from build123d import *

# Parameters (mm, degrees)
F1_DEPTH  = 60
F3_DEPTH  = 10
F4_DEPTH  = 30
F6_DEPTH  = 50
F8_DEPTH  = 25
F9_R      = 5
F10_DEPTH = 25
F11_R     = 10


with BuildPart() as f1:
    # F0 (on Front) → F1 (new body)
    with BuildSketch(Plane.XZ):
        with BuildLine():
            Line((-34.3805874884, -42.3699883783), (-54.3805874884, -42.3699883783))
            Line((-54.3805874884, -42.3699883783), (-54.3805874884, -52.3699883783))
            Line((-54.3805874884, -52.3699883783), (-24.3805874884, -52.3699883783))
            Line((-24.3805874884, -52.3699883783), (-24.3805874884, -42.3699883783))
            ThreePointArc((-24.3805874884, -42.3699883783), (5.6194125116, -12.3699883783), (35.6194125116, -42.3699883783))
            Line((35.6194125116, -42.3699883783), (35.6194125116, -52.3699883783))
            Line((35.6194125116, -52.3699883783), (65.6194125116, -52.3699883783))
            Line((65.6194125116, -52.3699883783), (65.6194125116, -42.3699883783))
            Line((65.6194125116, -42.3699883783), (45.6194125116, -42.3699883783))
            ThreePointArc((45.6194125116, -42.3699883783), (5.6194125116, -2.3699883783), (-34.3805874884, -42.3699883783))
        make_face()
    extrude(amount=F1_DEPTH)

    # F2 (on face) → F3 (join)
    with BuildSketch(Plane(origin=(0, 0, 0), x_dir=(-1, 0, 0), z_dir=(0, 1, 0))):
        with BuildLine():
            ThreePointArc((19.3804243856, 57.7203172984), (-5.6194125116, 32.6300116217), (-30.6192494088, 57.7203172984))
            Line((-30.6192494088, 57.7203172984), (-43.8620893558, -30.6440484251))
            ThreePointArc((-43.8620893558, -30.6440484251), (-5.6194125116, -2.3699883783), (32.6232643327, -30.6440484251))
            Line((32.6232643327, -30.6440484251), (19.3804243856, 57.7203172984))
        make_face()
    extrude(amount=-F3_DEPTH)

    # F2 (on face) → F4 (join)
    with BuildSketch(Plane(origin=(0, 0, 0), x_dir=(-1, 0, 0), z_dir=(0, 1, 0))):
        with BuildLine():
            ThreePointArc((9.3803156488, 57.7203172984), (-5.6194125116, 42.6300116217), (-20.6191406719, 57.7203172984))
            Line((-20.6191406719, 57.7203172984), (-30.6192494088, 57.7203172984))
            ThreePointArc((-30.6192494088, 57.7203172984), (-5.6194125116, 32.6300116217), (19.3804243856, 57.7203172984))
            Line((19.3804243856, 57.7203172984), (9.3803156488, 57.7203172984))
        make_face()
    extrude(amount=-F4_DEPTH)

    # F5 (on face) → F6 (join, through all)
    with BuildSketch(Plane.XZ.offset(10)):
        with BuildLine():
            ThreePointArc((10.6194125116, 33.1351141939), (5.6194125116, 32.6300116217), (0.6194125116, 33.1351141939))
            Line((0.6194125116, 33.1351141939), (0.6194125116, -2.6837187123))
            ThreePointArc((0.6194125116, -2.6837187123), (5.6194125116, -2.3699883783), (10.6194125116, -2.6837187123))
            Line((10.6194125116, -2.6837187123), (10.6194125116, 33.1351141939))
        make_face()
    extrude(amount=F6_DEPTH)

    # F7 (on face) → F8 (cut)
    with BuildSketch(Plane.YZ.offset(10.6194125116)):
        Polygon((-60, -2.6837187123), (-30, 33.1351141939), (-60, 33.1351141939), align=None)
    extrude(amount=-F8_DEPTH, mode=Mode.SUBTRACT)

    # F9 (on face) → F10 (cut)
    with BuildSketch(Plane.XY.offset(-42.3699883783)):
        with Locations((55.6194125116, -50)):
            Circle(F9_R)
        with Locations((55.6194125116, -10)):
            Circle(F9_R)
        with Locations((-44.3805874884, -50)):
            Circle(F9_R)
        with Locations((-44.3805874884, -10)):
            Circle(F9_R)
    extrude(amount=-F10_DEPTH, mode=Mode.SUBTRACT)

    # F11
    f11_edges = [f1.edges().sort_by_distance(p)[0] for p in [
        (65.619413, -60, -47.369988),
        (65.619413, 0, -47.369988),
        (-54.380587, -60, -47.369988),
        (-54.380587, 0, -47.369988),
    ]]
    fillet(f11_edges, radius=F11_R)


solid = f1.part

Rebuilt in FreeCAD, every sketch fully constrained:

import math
import FreeCAD as App
import Part
import Sketcher
Q = App.Units.Quantity


def edges_at(feature, points):
    """Names of the edges that pass closest to the given points."""
    edges = feature.Shape.Edges
    near = lambda p: min(range(len(edges)), key=lambda i: edges[i].distToShape(Part.Vertex(*p))[0])
    return sorted({f"Edge{near(p) + 1}" for p in points})

doc = App.newDocument("Part")
body = doc.addObject("PartDesign::Body", "Body")

# Sketch on XZ plane
sketch1 = body.newObject("Sketcher::SketchObject", "Sketch")
sketch1.AttachmentSupport = (doc.getObject("XZ_Plane"), [""])
sketch1.MapMode = "FlatFace"
sketch1.addGeometry(Part.LineSegment(App.Vector(-34.380587, -42.369988, 0), App.Vector(-54.380587, -42.369988, 0)), False)
sketch1.addGeometry(Part.LineSegment(App.Vector(-54.380587, -42.369988, 0), App.Vector(-54.380587, -52.369988, 0)), False)
sketch1.addGeometry(Part.LineSegment(App.Vector(-54.380587, -52.369988, 0), App.Vector(-24.380587, -52.369988, 0)), False)
sketch1.addGeometry(Part.LineSegment(App.Vector(-24.380587, -52.369988, 0), App.Vector(-24.380587, -42.369988, 0)), False)
sketch1.addGeometry(Part.ArcOfCircle(Part.Circle(App.Vector(5.619413, -42.369988, 0), App.Vector(0, 0, 1), 30), math.radians(0), math.radians(180)), False)
sketch1.addGeometry(Part.LineSegment(App.Vector(35.619413, -42.369988, 0), App.Vector(35.619413, -52.369988, 0)), False)
sketch1.addGeometry(Part.LineSegment(App.Vector(35.619413, -52.369988, 0), App.Vector(65.619413, -52.369988, 0)), False)
sketch1.addGeometry(Part.LineSegment(App.Vector(65.619413, -52.369988, 0), App.Vector(65.619413, -42.369988, 0)), False)
sketch1.addGeometry(Part.LineSegment(App.Vector(65.619413, -42.369988, 0), App.Vector(45.619413, -42.369988, 0)), False)
sketch1.addGeometry(Part.ArcOfCircle(Part.Circle(App.Vector(5.619413, -42.369988, 0), App.Vector(0, 0, 1), 40), math.radians(0), math.radians(180)), False)
sketch1.addConstraint(Sketcher.Constraint("Coincident", 0, 2, 1, 1))
sketch1.addConstraint(Sketcher.Constraint("Coincident", 1, 2, 2, 1))
sketch1.addConstraint(Sketcher.Constraint("Coincident", 2, 2, 3, 1))
sketch1.addConstraint(Sketcher.Constraint("Tangent", 3, 2, 4, 2))
sketch1.addConstraint(Sketcher.Constraint("Tangent", 4, 1, 5, 1))
sketch1.addConstraint(Sketcher.Constraint("Coincident", 5, 2, 6, 1))
sketch1.addConstraint(Sketcher.Constraint("Coincident", 6, 2, 7, 1))
sketch1.addConstraint(Sketcher.Constraint("Coincident", 7, 2, 8, 1))
sketch1.addConstraint(Sketcher.Constraint("Coincident", 8, 2, 9, 1))
sketch1.addConstraint(Sketcher.Constraint("Coincident", 9, 2, 0, 1))
sketch1.addConstraint(Sketcher.Constraint("Horizontal", 0))
sketch1.addConstraint(Sketcher.Constraint("Vertical", 1))
sketch1.addConstraint(Sketcher.Constraint("Horizontal", 2))
sketch1.addConstraint(Sketcher.Constraint("Vertical", 3))
sketch1.addConstraint(Sketcher.Constraint("Vertical", 5))
sketch1.addConstraint(Sketcher.Constraint("Horizontal", 6))
sketch1.addConstraint(Sketcher.Constraint("Vertical", 7))
sketch1.addConstraint(Sketcher.Constraint("Horizontal", 8))
sketch1.addConstraint(Sketcher.Constraint("Coincident", 9, 3, 4, 3))
sketch1.addConstraint(Sketcher.Constraint("Horizontal", 9, 3, 0, 2))
sketch1.addConstraint(Sketcher.Constraint("Horizontal", 2, 2, 5, 2))
sketch1.addConstraint(Sketcher.Constraint("Horizontal", 4, 1, 7, 2))
sketch1.addConstraint(Sketcher.Constraint("Equal", 2, 6))
sketch1.addConstraint(Sketcher.Constraint("Radius", 4, Q("30 mm")))
sketch1.addConstraint(Sketcher.Constraint("Radius", 9, Q("40 mm")))
sketch1.addConstraint(Sketcher.Constraint("DistanceX", 0, 2, 0, 1, Q("20 mm")))
sketch1.addConstraint(Sketcher.Constraint("DistanceY", 1, 2, 1, 1, Q("10 mm")))
sketch1.addConstraint(Sketcher.Constraint("DistanceY", 4, 3, -1, 1, Q("42.369988 mm")))
sketch1.addConstraint(Sketcher.Constraint("DistanceX", -1, 1, 4, 3, Q("5.619413 mm")))
pad1 = body.newObject("PartDesign::Pad", "Pad")
pad1.Profile = sketch1
pad1.Length = 60

# Sketch on XZ plane
sketch2 = body.newObject("Sketcher::SketchObject", "Sketch001")
sketch2.AttachmentSupport = (doc.getObject("XZ_Plane"), [""])
sketch2.MapMode = "FlatFace"
sketch2.addGeometry(Part.ArcOfCircle(Part.Circle(App.Vector(5.619413, 57.630012, 0), App.Vector(0, 0, 1), 25), math.radians(179.793034), math.radians(360.206966)), False)
sketch2.addGeometry(Part.LineSegment(App.Vector(30.619249, 57.720317, 0), App.Vector(43.862089, -30.644048, 0)), False)
sketch2.addGeometry(Part.ArcOfCircle(Part.Circle(App.Vector(5.619413, -42.369988, 0), App.Vector(0, 0, 1), 40), math.radians(17.046546), math.radians(162.953454)), False)
sketch2.addGeometry(Part.LineSegment(App.Vector(-32.623264, -30.644048, 0), App.Vector(-19.380424, 57.720317, 0)), False)
sketch2.addConstraint(Sketcher.Constraint("Coincident", 0, 2, 1, 1))
sketch2.addConstraint(Sketcher.Constraint("Coincident", 1, 2, 2, 1))
sketch2.addConstraint(Sketcher.Constraint("Coincident", 2, 2, 3, 1))
sketch2.addConstraint(Sketcher.Constraint("Coincident", 3, 2, 0, 1))
sketch2.addConstraint(Sketcher.Constraint("Horizontal", 1, 2, 2, 2))
sketch2.addConstraint(Sketcher.Constraint("Horizontal", 0, 2, 3, 2))
sketch2.addConstraint(Sketcher.Constraint("Vertical", 0, 3, 2, 3))
sketch2.addConstraint(Sketcher.Constraint("Radius", 0, Q("25 mm")))
sketch2.addConstraint(Sketcher.Constraint("Radius", 2, Q("40 mm")))
sketch2.addConstraint(Sketcher.Constraint("DistanceY", 2, 3, 0, 3, Q("100 mm")))
sketch2.addConstraint(Sketcher.Constraint("DistanceY", -1, 1, 0, 3, Q("57.630012 mm")))
sketch2.addConstraint(Sketcher.Constraint("DistanceX", -1, 1, 0, 2, Q("30.619249 mm")))
sketch2.addConstraint(Sketcher.Constraint("DistanceX", -1, 1, 1, 2, Q("43.862089 mm")))
sketch2.addConstraint(Sketcher.Constraint("DistanceY", 1, 2, -1, 1, Q("30.644048 mm")))
pad2 = body.newObject("PartDesign::Pad", "Pad001")
pad2.Profile = sketch2
pad2.Length = 10

# Sketch on XZ plane
sketch3 = body.newObject("Sketcher::SketchObject", "Sketch002")
sketch3.AttachmentSupport = (doc.getObject("XZ_Plane"), [""])
sketch3.MapMode = "FlatFace"
sketch3.addGeometry(Part.ArcOfCircle(Part.Circle(App.Vector(5.619413, 57.630012, 0), App.Vector(0, 0, 1), 15), math.radians(179.655056), math.radians(360.344944)), False)
sketch3.addGeometry(Part.LineSegment(App.Vector(20.619141, 57.720317, 0), App.Vector(30.619249, 57.720317, 0)), False)
sketch3.addGeometry(Part.ArcOfCircle(Part.Circle(App.Vector(5.619413, 57.630012, 0), App.Vector(0, 0, 1), 25), math.radians(179.793034), math.radians(360.206966)), False)
sketch3.addGeometry(Part.LineSegment(App.Vector(-19.380424, 57.720317, 0), App.Vector(-9.380316, 57.720317, 0)), False)
sketch3.addConstraint(Sketcher.Constraint("Coincident", 0, 2, 1, 1))
sketch3.addConstraint(Sketcher.Constraint("Coincident", 1, 2, 2, 2))
sketch3.addConstraint(Sketcher.Constraint("Coincident", 2, 1, 3, 1))
sketch3.addConstraint(Sketcher.Constraint("Coincident", 3, 2, 0, 1))
sketch3.addConstraint(Sketcher.Constraint("Horizontal", 1))
sketch3.addConstraint(Sketcher.Constraint("Horizontal", 3))
sketch3.addConstraint(Sketcher.Constraint("Coincident", 2, 3, 0, 3))
sketch3.addConstraint(Sketcher.Constraint("Horizontal", 1, 2, 2, 1))
sketch3.addConstraint(Sketcher.Constraint("Radius", 0, Q("15 mm")))
sketch3.addConstraint(Sketcher.Constraint("Radius", 2, Q("25 mm")))
sketch3.addConstraint(Sketcher.Constraint("DistanceY", -1, 1, 0, 3, Q("57.630012 mm")))
sketch3.addConstraint(Sketcher.Constraint("DistanceX", -1, 1, 0, 2, Q("20.619141 mm")))
sketch3.addConstraint(Sketcher.Constraint("DistanceX", 0, 3, 0, 2, Q("14.999728 mm")))
pad3 = body.newObject("PartDesign::Pad", "Pad002")
pad3.Profile = sketch3
pad3.Length = 30

# Sketch on XZ plane
sketch4 = body.newObject("Sketcher::SketchObject", "Sketch003")
sketch4.AttachmentSupport = (doc.getObject("XZ_Plane"), [""])
sketch4.MapMode = "FlatFace"
sketch4.AttachmentOffset = App.Placement(App.Vector(0, 0, 10), App.Rotation())
sketch4.addGeometry(Part.ArcOfCircle(Part.Circle(App.Vector(5.619413, 57.630012, 0), App.Vector(0, 0, 1), 25), math.radians(-101.536959), math.radians(-78.463041)), False)
sketch4.addGeometry(Part.LineSegment(App.Vector(0.619413, 33.135114, 0), App.Vector(0.619413, -2.683719, 0)), False)
sketch4.addGeometry(Part.ArcOfCircle(Part.Circle(App.Vector(5.619413, -42.369988, 0), App.Vector(0, 0, 1), 40), math.radians(82.819244), math.radians(97.180756)), False)
sketch4.addGeometry(Part.LineSegment(App.Vector(10.619413, -2.683719, 0), App.Vector(10.619413, 33.135114, 0)), False)
sketch4.addConstraint(Sketcher.Constraint("Coincident", 0, 1, 1, 1))
sketch4.addConstraint(Sketcher.Constraint("Coincident", 1, 2, 2, 2))
sketch4.addConstraint(Sketcher.Constraint("Coincident", 2, 1, 3, 1))
sketch4.addConstraint(Sketcher.Constraint("Coincident", 3, 2, 0, 2))
sketch4.addConstraint(Sketcher.Constraint("Vertical", 1))
sketch4.addConstraint(Sketcher.Constraint("Vertical", 3))
sketch4.addConstraint(Sketcher.Constraint("Horizontal", 1, 2, 2, 1))
sketch4.addConstraint(Sketcher.Constraint("Horizontal", 0, 1, 3, 2))
sketch4.addConstraint(Sketcher.Constraint("Radius", 0, Q("25 mm")))
sketch4.addConstraint(Sketcher.Constraint("Radius", 2, Q("40 mm")))
sketch4.addConstraint(Sketcher.Constraint("DistanceY", 2, 3, 0, 3, Q("100 mm")))
sketch4.addConstraint(Sketcher.Constraint("DistanceX", 0, 1, 0, 3, Q("5 mm")))
sketch4.addConstraint(Sketcher.Constraint("DistanceY", -1, 1, 0, 3, Q("57.630012 mm")))
sketch4.addConstraint(Sketcher.Constraint("DistanceX", -1, 1, 0, 3, Q("5.619413 mm")))
pad4 = body.newObject("PartDesign::Pad", "Pad003")
pad4.Profile = sketch4
pad4.Length = 50

# Sketch on YZ plane
sketch5 = body.newObject("Sketcher::SketchObject", "Sketch004")
sketch5.AttachmentSupport = (doc.getObject("YZ_Plane"), [""])
sketch5.MapMode = "FlatFace"
sketch5.AttachmentOffset = App.Placement(App.Vector(0, 0, 10.619413), App.Rotation())
sketch5.addGeometry(Part.LineSegment(App.Vector(-60, -2.683719, 0), App.Vector(-30, 33.135114, 0)), False)
sketch5.addGeometry(Part.LineSegment(App.Vector(-30, 33.135114, 0), App.Vector(-60, 33.135114, 0)), False)
sketch5.addGeometry(Part.LineSegment(App.Vector(-60, 33.135114, 0), App.Vector(-60, -2.683719, 0)), False)
sketch5.addConstraint(Sketcher.Constraint("Coincident", 0, 2, 1, 1))
sketch5.addConstraint(Sketcher.Constraint("Coincident", 1, 2, 2, 1))
sketch5.addConstraint(Sketcher.Constraint("Coincident", 2, 2, 0, 1))
sketch5.addConstraint(Sketcher.Constraint("Horizontal", 1))
sketch5.addConstraint(Sketcher.Constraint("Vertical", 2))
sketch5.addConstraint(Sketcher.Constraint("DistanceX", 1, 2, 1, 1, Q("30 mm")))
sketch5.addConstraint(Sketcher.Constraint("DistanceX", 0, 2, -1, 1, Q("30 mm")))
sketch5.addConstraint(Sketcher.Constraint("DistanceY", 2, 2, 2, 1, Q("35.818833 mm")))
sketch5.addConstraint(Sketcher.Constraint("DistanceY", 2, 2, -1, 1, Q("2.683719 mm")))
pocket1 = body.newObject("PartDesign::Pocket", "Pocket")
pocket1.Profile = sketch5
pocket1.Length = 25

# Sketch on XY plane
sketch6 = body.newObject("Sketcher::SketchObject", "Sketch005")
sketch6.AttachmentSupport = (doc.getObject("XY_Plane"), [""])
sketch6.MapMode = "FlatFace"
sketch6.AttachmentOffset = App.Placement(App.Vector(0, 0, -42.369988), App.Rotation())
sketch6.addGeometry(Part.Circle(App.Vector(55.619413, -50, 0), App.Vector(0, 0, 1), 5), False)
sketch6.addGeometry(Part.Circle(App.Vector(55.619413, -10, 0), App.Vector(0, 0, 1), 5), False)
sketch6.addGeometry(Part.Circle(App.Vector(-44.380587, -50, 0), App.Vector(0, 0, 1), 5), False)
sketch6.addGeometry(Part.Circle(App.Vector(-44.380587, -10, 0), App.Vector(0, 0, 1), 5), False)
sketch6.addConstraint(Sketcher.Constraint("Equal", 0, 1))
sketch6.addConstraint(Sketcher.Constraint("Equal", 1, 2))
sketch6.addConstraint(Sketcher.Constraint("Equal", 2, 3))
sketch6.addConstraint(Sketcher.Constraint("Horizontal", 0, 3, 2, 3))
sketch6.addConstraint(Sketcher.Constraint("Horizontal", 1, 3, 3, 3))
sketch6.addConstraint(Sketcher.Constraint("Vertical", 0, 3, 1, 3))
sketch6.addConstraint(Sketcher.Constraint("Vertical", 2, 3, 3, 3))
sketch6.addConstraint(Sketcher.Constraint("Diameter", 0, Q("10 mm")))
sketch6.addConstraint(Sketcher.Constraint("DistanceY", 0, 3, -1, 1, Q("50 mm")))
sketch6.addConstraint(Sketcher.Constraint("DistanceY", 1, 3, -1, 1, Q("10 mm")))
sketch6.addConstraint(Sketcher.Constraint("DistanceX", 2, 3, 0, 3, Q("100 mm")))
sketch6.addConstraint(Sketcher.Constraint("DistanceX", -1, 1, 0, 3, Q("55.619413 mm")))
pocket2 = body.newObject("PartDesign::Pocket", "Pocket001")
pocket2.Profile = sketch6
pocket2.Length = 25
doc.recompute()

fillet = body.newObject("PartDesign::Fillet", "Fillet")
fillet.Base = (pocket2, edges_at(pocket2, [
    (65.619, -60, -47.37),
    (65.619, 0, -47.37),
    (-54.381, -60, -47.37),
    (-54.381, 0, -47.37),
]))
fillet.Radius = 10

doc.recompute()
